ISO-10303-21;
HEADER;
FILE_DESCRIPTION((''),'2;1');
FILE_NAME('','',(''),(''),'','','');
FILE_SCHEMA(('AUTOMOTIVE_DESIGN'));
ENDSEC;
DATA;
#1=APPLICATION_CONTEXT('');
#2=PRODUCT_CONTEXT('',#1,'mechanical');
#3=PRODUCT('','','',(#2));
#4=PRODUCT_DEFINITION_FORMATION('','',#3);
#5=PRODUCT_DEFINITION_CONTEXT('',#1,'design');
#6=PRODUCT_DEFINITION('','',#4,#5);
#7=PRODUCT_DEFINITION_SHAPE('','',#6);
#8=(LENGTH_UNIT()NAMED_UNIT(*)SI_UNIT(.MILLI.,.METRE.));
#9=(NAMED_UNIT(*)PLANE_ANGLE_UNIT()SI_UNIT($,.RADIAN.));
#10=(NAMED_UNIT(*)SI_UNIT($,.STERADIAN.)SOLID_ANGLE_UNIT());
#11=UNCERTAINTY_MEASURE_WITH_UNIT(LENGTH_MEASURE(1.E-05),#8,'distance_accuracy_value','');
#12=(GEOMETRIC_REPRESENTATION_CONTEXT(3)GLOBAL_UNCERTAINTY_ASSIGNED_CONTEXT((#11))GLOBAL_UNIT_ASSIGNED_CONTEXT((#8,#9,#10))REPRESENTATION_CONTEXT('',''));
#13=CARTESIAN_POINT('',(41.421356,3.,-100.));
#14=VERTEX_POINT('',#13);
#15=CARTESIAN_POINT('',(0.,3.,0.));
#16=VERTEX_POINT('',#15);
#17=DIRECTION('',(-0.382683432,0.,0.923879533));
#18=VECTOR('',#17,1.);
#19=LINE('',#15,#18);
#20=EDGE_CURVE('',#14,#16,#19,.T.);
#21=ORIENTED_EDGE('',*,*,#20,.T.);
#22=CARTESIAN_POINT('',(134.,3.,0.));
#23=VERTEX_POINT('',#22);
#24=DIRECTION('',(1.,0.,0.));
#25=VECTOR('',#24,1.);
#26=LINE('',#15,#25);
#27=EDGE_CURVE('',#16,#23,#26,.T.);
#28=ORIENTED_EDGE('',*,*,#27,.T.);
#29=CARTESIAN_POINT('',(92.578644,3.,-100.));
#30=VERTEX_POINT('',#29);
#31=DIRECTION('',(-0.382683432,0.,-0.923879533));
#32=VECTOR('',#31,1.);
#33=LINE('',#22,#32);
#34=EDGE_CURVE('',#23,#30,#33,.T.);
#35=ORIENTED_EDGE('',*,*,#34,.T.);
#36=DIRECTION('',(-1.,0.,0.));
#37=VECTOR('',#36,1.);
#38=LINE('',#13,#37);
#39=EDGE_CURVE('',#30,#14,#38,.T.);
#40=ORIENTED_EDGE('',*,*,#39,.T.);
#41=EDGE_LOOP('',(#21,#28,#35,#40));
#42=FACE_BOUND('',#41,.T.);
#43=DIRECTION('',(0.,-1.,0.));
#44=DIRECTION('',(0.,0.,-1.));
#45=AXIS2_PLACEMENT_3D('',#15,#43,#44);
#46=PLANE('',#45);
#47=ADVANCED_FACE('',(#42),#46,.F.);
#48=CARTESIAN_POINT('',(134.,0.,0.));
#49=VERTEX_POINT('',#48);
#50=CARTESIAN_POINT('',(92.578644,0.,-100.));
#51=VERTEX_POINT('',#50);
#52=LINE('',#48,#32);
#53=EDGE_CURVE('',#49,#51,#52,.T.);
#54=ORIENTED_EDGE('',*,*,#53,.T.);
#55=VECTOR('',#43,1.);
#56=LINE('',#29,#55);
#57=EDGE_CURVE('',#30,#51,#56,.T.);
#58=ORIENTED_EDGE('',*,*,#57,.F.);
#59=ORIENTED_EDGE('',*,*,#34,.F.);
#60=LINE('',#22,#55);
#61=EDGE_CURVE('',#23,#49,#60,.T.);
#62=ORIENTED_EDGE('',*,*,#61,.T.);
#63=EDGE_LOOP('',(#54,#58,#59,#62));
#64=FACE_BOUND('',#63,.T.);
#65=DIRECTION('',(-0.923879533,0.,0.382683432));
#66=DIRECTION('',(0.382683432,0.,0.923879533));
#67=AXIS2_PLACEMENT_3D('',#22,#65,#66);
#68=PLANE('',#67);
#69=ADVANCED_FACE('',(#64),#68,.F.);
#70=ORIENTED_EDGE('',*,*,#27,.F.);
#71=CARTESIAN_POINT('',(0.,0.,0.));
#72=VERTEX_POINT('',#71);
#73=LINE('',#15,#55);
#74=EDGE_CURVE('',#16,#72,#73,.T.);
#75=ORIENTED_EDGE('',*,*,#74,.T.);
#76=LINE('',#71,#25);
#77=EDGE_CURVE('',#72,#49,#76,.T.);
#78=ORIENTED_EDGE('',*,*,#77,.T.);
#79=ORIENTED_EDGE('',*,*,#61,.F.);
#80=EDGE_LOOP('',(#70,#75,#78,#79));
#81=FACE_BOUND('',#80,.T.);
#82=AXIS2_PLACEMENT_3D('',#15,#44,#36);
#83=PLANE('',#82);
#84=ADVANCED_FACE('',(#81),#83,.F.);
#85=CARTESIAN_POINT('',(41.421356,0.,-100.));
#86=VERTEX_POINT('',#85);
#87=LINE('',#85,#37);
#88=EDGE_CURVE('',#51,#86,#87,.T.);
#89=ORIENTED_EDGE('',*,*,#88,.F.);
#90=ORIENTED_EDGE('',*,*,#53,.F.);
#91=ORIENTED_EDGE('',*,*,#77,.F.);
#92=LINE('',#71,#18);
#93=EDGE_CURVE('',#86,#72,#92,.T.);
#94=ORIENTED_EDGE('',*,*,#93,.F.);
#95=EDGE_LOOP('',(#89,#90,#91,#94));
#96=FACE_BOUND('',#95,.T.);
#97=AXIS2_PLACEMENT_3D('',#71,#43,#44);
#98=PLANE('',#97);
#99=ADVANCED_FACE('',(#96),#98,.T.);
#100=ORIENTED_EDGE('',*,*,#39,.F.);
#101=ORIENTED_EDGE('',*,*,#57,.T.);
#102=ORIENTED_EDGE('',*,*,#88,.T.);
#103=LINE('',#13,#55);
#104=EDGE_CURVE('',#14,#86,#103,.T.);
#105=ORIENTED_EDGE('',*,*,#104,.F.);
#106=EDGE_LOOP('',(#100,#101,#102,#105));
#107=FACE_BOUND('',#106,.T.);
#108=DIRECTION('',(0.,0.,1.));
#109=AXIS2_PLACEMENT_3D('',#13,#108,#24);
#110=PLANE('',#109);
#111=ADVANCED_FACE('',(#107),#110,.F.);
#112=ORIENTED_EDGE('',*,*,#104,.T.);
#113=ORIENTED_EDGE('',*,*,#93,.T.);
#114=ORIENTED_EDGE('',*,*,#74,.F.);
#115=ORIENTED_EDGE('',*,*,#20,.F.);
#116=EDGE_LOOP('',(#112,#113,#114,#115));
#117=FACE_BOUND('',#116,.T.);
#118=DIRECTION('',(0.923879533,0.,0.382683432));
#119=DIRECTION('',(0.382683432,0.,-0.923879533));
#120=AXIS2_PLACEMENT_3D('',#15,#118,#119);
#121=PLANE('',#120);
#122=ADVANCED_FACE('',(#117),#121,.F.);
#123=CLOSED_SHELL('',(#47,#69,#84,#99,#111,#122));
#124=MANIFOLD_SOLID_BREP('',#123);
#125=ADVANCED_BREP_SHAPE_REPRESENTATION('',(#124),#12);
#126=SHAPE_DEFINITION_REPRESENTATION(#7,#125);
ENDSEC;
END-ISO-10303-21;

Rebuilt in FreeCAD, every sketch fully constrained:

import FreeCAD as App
import Part
import Sketcher
from FreeCAD import Vector
Q = App.Units.Quantity

doc = App.newDocument("Part")
body = doc.addObject("PartDesign::Body", "Body")

sketch1 = body.newObject("Sketcher::SketchObject", "Sketch")
sketch1.AttachmentSupport = (doc.getObject("XZ_Plane"), [""])
sketch1.MapMode = "FlatFace"
sketch1.addGeometry([
    Part.LineSegment(Vector(0, 0, 0), Vector(134, 0, 0)),
    Part.LineSegment(Vector(134, 0, 0), Vector(92.578644, -100, 0)),
    Part.LineSegment(Vector(92.578644, -100, 0), Vector(41.421356, -100, 0)),
    Part.LineSegment(Vector(41.421356, -100, 0), Vector(0, 0, 0)),
], False)
sketch1.addConstraint([
    Sketcher.Constraint("Coincident", 0, 2, 1, 1),
    Sketcher.Constraint("Coincident", 1, 2, 2, 1),
    Sketcher.Constraint("Coincident", 2, 2, 3, 1),
    Sketcher.Constraint("Coincident", 3, 2, 0, 1),
    Sketcher.Constraint("Horizontal", 0),
    Sketcher.Constraint("Horizontal", 2),
    Sketcher.Constraint("Coincident", 3, 2, -1, 1),
    Sketcher.Constraint("Equal", 1, 3),
    Sketcher.Constraint("DistanceX", 0, 1, 0, 2, Q("134 mm")),
    Sketcher.Constraint("DistanceY", 1, 2, -1, 1, Q("100 mm")),
    Sketcher.Constraint("Angle", 1, Q("-112.5 deg")),
])
pad1 = body.newObject("PartDesign::Pad", "Pad")
pad1.Profile = sketch1
pad1.Length = 3
pad1.Reversed = True

doc.recompute()
